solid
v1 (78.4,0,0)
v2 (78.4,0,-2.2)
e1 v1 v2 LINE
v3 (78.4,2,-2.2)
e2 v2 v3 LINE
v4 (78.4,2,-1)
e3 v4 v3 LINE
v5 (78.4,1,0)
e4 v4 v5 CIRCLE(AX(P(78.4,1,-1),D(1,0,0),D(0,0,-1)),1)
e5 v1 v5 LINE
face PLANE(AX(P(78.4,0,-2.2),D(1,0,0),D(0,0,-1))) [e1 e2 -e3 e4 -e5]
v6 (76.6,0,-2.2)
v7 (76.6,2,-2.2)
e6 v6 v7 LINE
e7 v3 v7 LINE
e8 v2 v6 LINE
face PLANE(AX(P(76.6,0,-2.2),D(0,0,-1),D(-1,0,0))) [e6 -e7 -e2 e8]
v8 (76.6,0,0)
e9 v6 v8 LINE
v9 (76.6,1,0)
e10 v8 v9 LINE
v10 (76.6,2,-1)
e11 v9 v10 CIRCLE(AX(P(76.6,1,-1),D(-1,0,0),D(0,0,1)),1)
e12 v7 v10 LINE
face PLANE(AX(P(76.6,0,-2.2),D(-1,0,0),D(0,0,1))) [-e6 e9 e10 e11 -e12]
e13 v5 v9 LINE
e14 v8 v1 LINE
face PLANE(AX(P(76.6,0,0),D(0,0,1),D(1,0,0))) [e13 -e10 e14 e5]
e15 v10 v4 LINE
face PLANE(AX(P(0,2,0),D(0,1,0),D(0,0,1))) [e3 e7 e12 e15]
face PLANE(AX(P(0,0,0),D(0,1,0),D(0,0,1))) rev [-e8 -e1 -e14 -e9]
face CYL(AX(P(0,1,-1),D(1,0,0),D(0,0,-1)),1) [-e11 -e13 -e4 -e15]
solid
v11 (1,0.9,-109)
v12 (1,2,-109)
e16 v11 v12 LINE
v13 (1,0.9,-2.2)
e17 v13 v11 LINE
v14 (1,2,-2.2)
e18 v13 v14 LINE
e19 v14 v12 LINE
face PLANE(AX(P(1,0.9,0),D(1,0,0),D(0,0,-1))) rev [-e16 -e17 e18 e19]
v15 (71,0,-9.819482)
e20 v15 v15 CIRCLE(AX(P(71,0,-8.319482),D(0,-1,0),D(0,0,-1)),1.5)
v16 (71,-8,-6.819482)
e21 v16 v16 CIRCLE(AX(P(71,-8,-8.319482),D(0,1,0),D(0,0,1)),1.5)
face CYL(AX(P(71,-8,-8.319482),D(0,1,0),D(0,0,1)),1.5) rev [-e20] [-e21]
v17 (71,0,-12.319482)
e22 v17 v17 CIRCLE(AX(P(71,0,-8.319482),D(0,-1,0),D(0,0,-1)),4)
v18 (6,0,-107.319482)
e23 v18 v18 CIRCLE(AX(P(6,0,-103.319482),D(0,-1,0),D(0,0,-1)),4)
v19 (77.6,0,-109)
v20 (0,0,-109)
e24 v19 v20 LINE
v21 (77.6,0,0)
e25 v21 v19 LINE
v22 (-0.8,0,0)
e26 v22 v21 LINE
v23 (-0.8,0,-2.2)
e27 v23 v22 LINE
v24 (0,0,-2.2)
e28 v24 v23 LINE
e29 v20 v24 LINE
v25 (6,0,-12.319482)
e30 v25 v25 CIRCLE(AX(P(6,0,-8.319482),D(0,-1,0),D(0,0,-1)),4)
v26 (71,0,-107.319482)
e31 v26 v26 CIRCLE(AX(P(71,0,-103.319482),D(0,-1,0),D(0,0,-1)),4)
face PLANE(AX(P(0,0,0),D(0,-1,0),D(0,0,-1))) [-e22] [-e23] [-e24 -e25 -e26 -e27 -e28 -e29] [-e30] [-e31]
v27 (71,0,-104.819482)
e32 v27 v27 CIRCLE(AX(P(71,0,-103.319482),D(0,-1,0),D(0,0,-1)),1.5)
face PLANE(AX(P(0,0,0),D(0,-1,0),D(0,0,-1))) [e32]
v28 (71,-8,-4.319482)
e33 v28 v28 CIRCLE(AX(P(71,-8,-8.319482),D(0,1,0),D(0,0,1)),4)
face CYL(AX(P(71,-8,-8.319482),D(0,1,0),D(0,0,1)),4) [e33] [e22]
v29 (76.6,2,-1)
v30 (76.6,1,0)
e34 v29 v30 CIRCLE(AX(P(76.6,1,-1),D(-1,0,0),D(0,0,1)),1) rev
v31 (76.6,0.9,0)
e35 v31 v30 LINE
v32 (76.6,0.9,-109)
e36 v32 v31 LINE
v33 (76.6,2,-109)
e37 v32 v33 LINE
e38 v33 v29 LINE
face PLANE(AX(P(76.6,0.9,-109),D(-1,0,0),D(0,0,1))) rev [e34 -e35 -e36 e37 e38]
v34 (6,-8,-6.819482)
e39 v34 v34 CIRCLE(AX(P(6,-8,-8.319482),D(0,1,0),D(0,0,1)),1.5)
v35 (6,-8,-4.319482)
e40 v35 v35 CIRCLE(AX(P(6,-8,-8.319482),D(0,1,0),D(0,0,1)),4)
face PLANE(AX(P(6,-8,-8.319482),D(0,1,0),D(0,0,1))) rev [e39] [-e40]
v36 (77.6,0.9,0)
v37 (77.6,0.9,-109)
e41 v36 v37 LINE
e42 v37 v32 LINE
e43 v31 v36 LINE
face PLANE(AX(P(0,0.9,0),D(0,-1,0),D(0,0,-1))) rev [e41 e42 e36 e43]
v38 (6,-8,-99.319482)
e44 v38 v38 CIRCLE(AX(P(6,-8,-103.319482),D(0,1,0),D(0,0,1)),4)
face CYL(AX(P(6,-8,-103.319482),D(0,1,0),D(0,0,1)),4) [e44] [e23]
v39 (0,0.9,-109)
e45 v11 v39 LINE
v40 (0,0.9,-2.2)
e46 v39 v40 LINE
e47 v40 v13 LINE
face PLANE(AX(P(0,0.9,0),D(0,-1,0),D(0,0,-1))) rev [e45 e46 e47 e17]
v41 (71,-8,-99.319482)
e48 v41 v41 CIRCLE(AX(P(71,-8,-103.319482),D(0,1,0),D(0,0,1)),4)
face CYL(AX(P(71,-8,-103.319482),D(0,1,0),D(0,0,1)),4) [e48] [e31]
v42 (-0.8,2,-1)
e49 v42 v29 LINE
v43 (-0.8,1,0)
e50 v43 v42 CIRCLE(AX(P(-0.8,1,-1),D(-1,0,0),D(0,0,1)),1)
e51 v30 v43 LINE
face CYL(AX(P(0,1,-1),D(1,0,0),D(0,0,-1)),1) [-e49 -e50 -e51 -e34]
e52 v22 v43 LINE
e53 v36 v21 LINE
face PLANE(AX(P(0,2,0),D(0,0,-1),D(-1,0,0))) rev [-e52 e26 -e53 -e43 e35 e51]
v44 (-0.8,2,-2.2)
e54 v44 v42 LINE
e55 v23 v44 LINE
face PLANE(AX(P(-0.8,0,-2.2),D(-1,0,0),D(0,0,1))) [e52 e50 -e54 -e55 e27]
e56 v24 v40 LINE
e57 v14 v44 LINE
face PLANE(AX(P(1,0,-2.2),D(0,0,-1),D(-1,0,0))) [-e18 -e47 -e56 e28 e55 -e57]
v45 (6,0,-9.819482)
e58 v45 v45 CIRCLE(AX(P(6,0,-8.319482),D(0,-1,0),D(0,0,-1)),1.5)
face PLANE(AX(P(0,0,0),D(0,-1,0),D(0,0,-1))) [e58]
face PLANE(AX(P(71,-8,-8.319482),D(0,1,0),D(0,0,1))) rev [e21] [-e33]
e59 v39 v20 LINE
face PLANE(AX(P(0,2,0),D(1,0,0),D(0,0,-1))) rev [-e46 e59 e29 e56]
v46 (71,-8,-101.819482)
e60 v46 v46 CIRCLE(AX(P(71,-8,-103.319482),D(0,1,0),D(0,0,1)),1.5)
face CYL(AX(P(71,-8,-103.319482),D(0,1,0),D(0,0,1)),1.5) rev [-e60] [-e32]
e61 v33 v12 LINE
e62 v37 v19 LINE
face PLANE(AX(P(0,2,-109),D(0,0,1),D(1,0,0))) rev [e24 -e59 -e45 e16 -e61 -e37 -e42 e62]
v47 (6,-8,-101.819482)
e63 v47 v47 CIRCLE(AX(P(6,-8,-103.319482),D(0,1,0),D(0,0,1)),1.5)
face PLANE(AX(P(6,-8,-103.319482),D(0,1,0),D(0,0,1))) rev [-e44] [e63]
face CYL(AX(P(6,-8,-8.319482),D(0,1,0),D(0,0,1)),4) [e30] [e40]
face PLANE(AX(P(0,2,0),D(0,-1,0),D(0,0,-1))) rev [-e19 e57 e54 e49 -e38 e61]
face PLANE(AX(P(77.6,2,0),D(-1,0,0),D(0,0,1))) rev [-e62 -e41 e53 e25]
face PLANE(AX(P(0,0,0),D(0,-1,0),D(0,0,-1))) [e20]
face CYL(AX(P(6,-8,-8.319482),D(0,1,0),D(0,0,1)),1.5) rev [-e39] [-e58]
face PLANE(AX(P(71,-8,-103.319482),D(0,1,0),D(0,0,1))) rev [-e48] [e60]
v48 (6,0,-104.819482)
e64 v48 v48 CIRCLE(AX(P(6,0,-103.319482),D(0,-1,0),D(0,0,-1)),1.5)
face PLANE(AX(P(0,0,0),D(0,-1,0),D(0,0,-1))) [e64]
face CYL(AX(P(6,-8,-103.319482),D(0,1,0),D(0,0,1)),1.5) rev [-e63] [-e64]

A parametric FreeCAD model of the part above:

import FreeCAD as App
import Part
import Sketcher

V = App.Vector
Q = App.Units.Quantity


def edges_at(feature, points):
    """Names of the edges that pass closest to the given points."""
    edges = feature.Shape.Edges
    near = lambda p: min(range(len(edges)), key=lambda i: edges[i].distToShape(Part.Vertex(*p))[0])
    return sorted({f"Edge{near(p) + 1}" for p in points})

doc = App.newDocument("Part")
params = doc.addObject("Spreadsheet::Sheet", "Params")
for row, (alias, value) in enumerate([
    ("sketch1_height", "109 mm"),
    ("sketch1_width", "77.6 mm"),
    ("pad1_length", "2 mm"),
    ("sketch2_width", "1 mm"),
    ("sketch2_height", "109 mm"),
    ("pocket1_length", "1.1 mm"),
    ("sketch3_diameter", "8 mm"),
    ("sketch3_diameter2", "3 mm"),
    ("pad2_length", "10 mm"),
    ("sketch4_width", "1.8 mm"),
    ("sketch4_height", "2.2 mm"),
    ("pad3_length", "2 mm"),
    ("fillet_radius", "1 mm"),
    ("sketch5_width", "1.8 mm"),
    ("sketch5_height", "2.2 mm"),
    ("pad4_length", "2 mm"),
    ("fillet2_radius", "1 mm"),
], start=1):
    params.set(f"A{row}", alias)
    params.set(f"B{row}", "=" + value)
    params.setAlias(f"B{row}", alias)

body = doc.addObject("PartDesign::Body", "Body")

sketch1 = body.newObject("Sketcher::SketchObject", "Sketch")
sketch1.AttachmentSupport = (doc.getObject("XZ_Plane"), [""])
sketch1.MapMode = "FlatFace"
sketch1.addGeometry(Part.LineSegment(V(0, -109, 0), V(0, 0, 0)), False)
sketch1.addGeometry(Part.LineSegment(V(0, 0, 0), V(78, 0, 0)), False)
sketch1.addGeometry(Part.LineSegment(V(78, 0, 0), V(78, -109, 0)), False)
sketch1.addGeometry(Part.LineSegment(V(78, -109, 0), V(0, -109, 0)), False)
sketch1.addConstraint(Sketcher.Constraint("Coincident", 0, 2, 1, 1))
sketch1.addConstraint(Sketcher.Constraint("Coincident", 1, 2, 2, 1))
sketch1.addConstraint(Sketcher.Constraint("Coincident", 2, 2, 3, 1))
sketch1.addConstraint(Sketcher.Constraint("Coincident", 3, 2, 0, 1))
sketch1.addConstraint(Sketcher.Constraint("Vertical", 0))
sketch1.addConstraint(Sketcher.Constraint("Horizontal", 1))
sketch1.addConstraint(Sketcher.Constraint("Vertical", 2))
sketch1.addConstraint(Sketcher.Constraint("Horizontal", 3))
sketch1.addConstraint(Sketcher.Constraint("Coincident", 0, 2, -1, 1))
sketch1.addConstraint(Sketcher.Constraint("DistanceY", 0, 1, 0, 2, Q("109 mm")))
sketch1.addConstraint(Sketcher.Constraint("DistanceX", 1, 1, 1, 2, Q("77.6 mm")))
sketch1.setExpression("Constraints[9]", "Params.sketch1_height")
sketch1.setExpression("Constraints[10]", "Params.sketch1_width")
pad1 = body.newObject("PartDesign::Pad", "Pad")
pad1.Profile = sketch1
pad1.setExpression("Length", "Params.pad1_length")
pad1.Reversed = True

sketch2 = body.newObject("Sketcher::SketchObject", "Sketch001")
sketch2.AttachmentSupport = (doc.getObject("XZ_Plane"), [""])
sketch2.MapMode = "FlatFace"
sketch2.AttachmentOffset = App.Placement(V(0, 0, -2), App.Rotation())
sketch2.addGeometry(Part.LineSegment(V(76.6, -109, 0), V(76.6, 0, 0)), False)
sketch2.addGeometry(Part.LineSegment(V(76.6, 0, 0), V(77.6, 0, 0)), False)
sketch2.addGeometry(Part.LineSegment(V(77.6, 0, 0), V(77.6, -109, 0)), False)
sketch2.addGeometry(Part.LineSegment(V(77.6, -109, 0), V(76.6, -109, 0)), False)
sketch2.addGeometry(Part.LineSegment(V(0, -109, 0), V(0, 0, 0)), False)
sketch2.addGeometry(Part.LineSegment(V(0, 0, 0), V(1, 0, 0)), False)
sketch2.addGeometry(Part.LineSegment(V(1, 0, 0), V(1, -109, 0)), False)
sketch2.addGeometry(Part.LineSegment(V(1, -109, 0), V(0, -109, 0)), False)
sketch2.addConstraint(Sketcher.Constraint("Coincident", 0, 2, 1, 1))
sketch2.addConstraint(Sketcher.Constraint("Coincident", 1, 2, 2, 1))
sketch2.addConstraint(Sketcher.Constraint("Coincident", 2, 2, 3, 1))
sketch2.addConstraint(Sketcher.Constraint("Coincident", 3, 2, 0, 1))
sketch2.addConstraint(Sketcher.Constraint("Coincident", 4, 2, 5, 1))
sketch2.addConstraint(Sketcher.Constraint("Coincident", 5, 2, 6, 1))
sketch2.addConstraint(Sketcher.Constraint("Coincident", 6, 2, 7, 1))
sketch2.addConstraint(Sketcher.Constraint("Coincident", 7, 2, 4, 1))
sketch2.addConstraint(Sketcher.Constraint("Vertical", 0))
sketch2.addConstraint(Sketcher.Constraint("Horizontal", 1))
sketch2.addConstraint(Sketcher.Constraint("Vertical", 2))
sketch2.addConstraint(Sketcher.Constraint("Horizontal", 3))
sketch2.addConstraint(Sketcher.Constraint("Vertical", 4))
sketch2.addConstraint(Sketcher.Constraint("Horizontal", 5))
sketch2.addConstraint(Sketcher.Constraint("Vertical", 6))
sketch2.addConstraint(Sketcher.Constraint("Horizontal", 7))
sketch2.addConstraint(Sketcher.Constraint("Coincident", 4, 2, -1, 1))
sketch2.addConstraint(Sketcher.Constraint("PointOnObject", 0, 2, -1))
sketch2.addConstraint(Sketcher.Constraint("Horizontal", 3, 2, 6, 2))
sketch2.addConstraint(Sketcher.Constraint("Equal", 3, 5))
sketch2.addConstraint(Sketcher.Constraint("DistanceX", 1, 1, 1, 2, Q("1 mm")))
sketch2.addConstraint(Sketcher.Constraint("DistanceY", 0, 1, 0, 2, Q("109 mm")))
sketch2.addConstraint(Sketcher.Constraint("DistanceX", -1, 1, 0, 2, Q("76.6 mm")))
sketch2.setExpression("Constraints[20]", "Params.sketch2_width")
sketch2.setExpression("Constraints[21]", "Params.sketch2_height")
pocket1 = body.newObject("PartDesign::Pocket", "Pocket")
pocket1.Profile = sketch2
pocket1.setExpression("Length", "Params.pocket1_length")
pocket1.Reversed = True

sketch3 = body.newObject("Sketcher::SketchObject", "Sketch002")
sketch3.AttachmentSupport = (doc.getObject("XZ_Plane"), [""])
sketch3.MapMode = "FlatFace"
sketch3.AttachmentOffset = App.Placement(V(0, 0, -2), App.Rotation())
sketch3.addGeometry(Part.Circle(V(6, -103.3, 0), V(0, 0, 1), 4), False)
sketch3.addGeometry(Part.Circle(V(6, -103.3, 0), V(0, 0, 1), 1.5), False)
sketch3.addGeometry(Part.Circle(V(6, -8.3, 0), V(0, 0, 1), 4), False)
sketch3.addGeometry(Part.Circle(V(6, -8.3, 0), V(0, 0, 1), 1.5), False)
sketch3.addGeometry(Part.Circle(V(71, -8.3, 0), V(0, 0, 1), 4), False)
sketch3.addGeometry(Part.Circle(V(71, -8.3, 0), V(0, 0, 1), 1.5), False)
sketch3.addGeometry(Part.Circle(V(71, -103.3, 0), V(0, 0, 1), 4), False)
sketch3.addGeometry(Part.Circle(V(71, -103.3, 0), V(0, 0, 1), 1.5), False)
sketch3.addConstraint(Sketcher.Constraint("Coincident", 1, 3, 0, 3))
sketch3.addConstraint(Sketcher.Constraint("Coincident", 3, 3, 2, 3))
sketch3.addConstraint(Sketcher.Constraint("Coincident", 5, 3, 4, 3))
sketch3.addConstraint(Sketcher.Constraint("Coincident", 7, 3, 6, 3))
sketch3.addConstraint(Sketcher.Constraint("Equal", 0, 2))
sketch3.addConstraint(Sketcher.Constraint("Equal", 1, 3))
sketch3.addConstraint(Sketcher.Constraint("Equal", 2, 4))
sketch3.addConstraint(Sketcher.Constraint("Equal", 3, 5))
sketch3.addConstraint(Sketcher.Constraint("Equal", 4, 6))
sketch3.addConstraint(Sketcher.Constraint("Equal", 5, 7))
sketch3.addConstraint(Sketcher.Constraint("Horizontal", 3, 3, 4, 3))
sketch3.addConstraint(Sketcher.Constraint("Horizontal", 1, 3, 6, 3))
sketch3.addConstraint(Sketcher.Constraint("Vertical", 1, 3, 2, 3))
sketch3.addConstraint(Sketcher.Constraint("Vertical", 5, 3, 6, 3))
sketch3.addConstraint(Sketcher.Constraint("Diameter", 0, Q("8 mm")))
sketch3.addConstraint(Sketcher.Constraint("Diameter", 1, Q("3 mm")))
sketch3.addConstraint(Sketcher.Constraint("DistanceX", -1, 1, 0, 3, Q("6 mm")))
sketch3.addConstraint(Sketcher.Constraint("DistanceX", -1, 1, 4, 3, Q("71 mm")))
sketch3.addConstraint(Sketcher.Constraint("DistanceY", 0, 3, 2, 3, Q("95 mm")))
sketch3.addConstraint(Sketcher.Constraint("DistanceY", 0, 3, -1, 1, Q("103.319482 mm")))
sketch3.setExpression("Constraints[14]", "Params.sketch3_diameter")
sketch3.setExpression("Constraints[15]", "Params.sketch3_diameter2")
pad2 = body.newObject("PartDesign::Pad", "Pad001")
pad2.Profile = sketch3
pad2.setExpression("Length", "Params.pad2_length")

sketch4 = body.newObject("Sketcher::SketchObject", "Sketch003")
sketch4.AttachmentSupport = (doc.getObject("XZ_Plane"), [""])
sketch4.MapMode = "FlatFace"
sketch4.AttachmentOffset = App.Placement(V(0, 0, -2), App.Rotation())
sketch4.addGeometry(Part.LineSegment(V(-0.8, -2.2, 0), V(-0.8, 0, 0)), False)
sketch4.addGeometry(Part.LineSegment(V(-0.8, 0, 0), V(1, 0, 0)), False)
sketch4.addGeometry(Part.LineSegment(V(1, 0, 0), V(1, -2.2, 0)), False)
sketch4.addGeometry(Part.LineSegment(V(1, -2.2, 0), V(-0.8, -2.2, 0)), False)
sketch4.addConstraint(Sketcher.Constraint("Coincident", 0, 2, 1, 1))
sketch4.addConstraint(Sketcher.Constraint("Coincident", 1, 2, 2, 1))
sketch4.addConstraint(Sketcher.Constraint("Coincident", 2, 2, 3, 1))
sketch4.addConstraint(Sketcher.Constraint("Coincident", 3, 2, 0, 1))
sketch4.addConstraint(Sketcher.Constraint("Vertical", 0))
sketch4.addConstraint(Sketcher.Constraint("Horizontal", 1))
sketch4.addConstraint(Sketcher.Constraint("Vertical", 2))
sketch4.addConstraint(Sketcher.Constraint("Horizontal", 3))
sketch4.addConstraint(Sketcher.Constraint("PointOnObject", 0, 2, -1))
sketch4.addConstraint(Sketcher.Constraint("DistanceX", 1, 1, 1, 2, Q("1.8 mm")))
sketch4.addConstraint(Sketcher.Constraint("DistanceY", 0, 1, 0, 2, Q("2.2 mm")))
sketch4.addConstraint(Sketcher.Constraint("DistanceX", -1, 1, 1, 2, Q("1 mm")))
sketch4.setExpression("Constraints[9]", "Params.sketch4_width")
sketch4.setExpression("Constraints[10]", "Params.sketch4_height")
pad3 = body.newObject("PartDesign::Pad", "Pad002")
pad3.Profile = sketch4
pad3.setExpression("Length", "Params.pad3_length")
doc.recompute()

fillet = body.newObject("PartDesign::Fillet", "Fillet")
fillet.Base = (pad3, edges_at(pad3, [(37.9, 2, 0)]))
fillet.setExpression("Radius", "Params.fillet_radius")
body2 = doc.addObject("PartDesign::Body", "Body001")

sketch5 = body2.newObject("Sketcher::SketchObject", "Sketch004")
sketch5.AttachmentSupport = (doc.getObject("XZ_Plane001"), [""])
sketch5.MapMode = "FlatFace"
sketch5.AttachmentOffset = App.Placement(V(0, 0, -2), App.Rotation())
sketch5.addGeometry(Part.LineSegment(V(76.6, -2.2, 0), V(76.6, 0, 0)), False)
sketch5.addGeometry(Part.LineSegment(V(76.6, 0, 0), V(78.4, 0, 0)), False)
sketch5.addGeometry(Part.LineSegment(V(78.4, 0, 0), V(78.4, -2.2, 0)), False)
sketch5.addGeometry(Part.LineSegment(V(78.4, -2.2, 0), V(76.6, -2.2, 0)), False)
sketch5.addConstraint(Sketcher.Constraint("Coincident", 0, 2, 1, 1))
sketch5.addConstraint(Sketcher.Constraint("Coincident", 1, 2, 2, 1))
sketch5.addConstraint(Sketcher.Constraint("Coincident", 2, 2, 3, 1))
sketch5.addConstraint(Sketcher.Constraint("Coincident", 3, 2, 0, 1))
sketch5.addConstraint(Sketcher.Constraint("Vertical", 0))
sketch5.addConstraint(Sketcher.Constraint("Horizontal", 1))
sketch5.addConstraint(Sketcher.Constraint("Vertical", 2))
sketch5.addConstraint(Sketcher.Constraint("Horizontal", 3))
sketch5.addConstraint(Sketcher.Constraint("PointOnObject", 0, 2, -1))
sketch5.addConstraint(Sketcher.Constraint("DistanceX", 1, 1, 1, 2, Q("1.8 mm")))
sketch5.addConstraint(Sketcher.Constraint("DistanceY", 0, 1, 0, 2, Q("2.2 mm")))
sketch5.addConstraint(Sketcher.Constraint("DistanceX", -1, 1, 0, 2, Q("76.6 mm")))
sketch5.setExpression("Constraints[9]", "Params.sketch5_width")
sketch5.setExpression("Constraints[10]", "Params.sketch5_height")
pad4 = body2.newObject("PartDesign::Pad", "Pad003")
pad4.Profile = sketch5
pad4.setExpression("Length", "Params.pad4_length")
doc.recompute()

fillet2 = body2.newObject("PartDesign::Fillet", "Fillet001")
fillet2.Base = (pad4, edges_at(pad4, [(77.5, 2, 0)]))
fillet2.setExpression("Radius", "Params.fillet2_radius")

doc.recompute()
